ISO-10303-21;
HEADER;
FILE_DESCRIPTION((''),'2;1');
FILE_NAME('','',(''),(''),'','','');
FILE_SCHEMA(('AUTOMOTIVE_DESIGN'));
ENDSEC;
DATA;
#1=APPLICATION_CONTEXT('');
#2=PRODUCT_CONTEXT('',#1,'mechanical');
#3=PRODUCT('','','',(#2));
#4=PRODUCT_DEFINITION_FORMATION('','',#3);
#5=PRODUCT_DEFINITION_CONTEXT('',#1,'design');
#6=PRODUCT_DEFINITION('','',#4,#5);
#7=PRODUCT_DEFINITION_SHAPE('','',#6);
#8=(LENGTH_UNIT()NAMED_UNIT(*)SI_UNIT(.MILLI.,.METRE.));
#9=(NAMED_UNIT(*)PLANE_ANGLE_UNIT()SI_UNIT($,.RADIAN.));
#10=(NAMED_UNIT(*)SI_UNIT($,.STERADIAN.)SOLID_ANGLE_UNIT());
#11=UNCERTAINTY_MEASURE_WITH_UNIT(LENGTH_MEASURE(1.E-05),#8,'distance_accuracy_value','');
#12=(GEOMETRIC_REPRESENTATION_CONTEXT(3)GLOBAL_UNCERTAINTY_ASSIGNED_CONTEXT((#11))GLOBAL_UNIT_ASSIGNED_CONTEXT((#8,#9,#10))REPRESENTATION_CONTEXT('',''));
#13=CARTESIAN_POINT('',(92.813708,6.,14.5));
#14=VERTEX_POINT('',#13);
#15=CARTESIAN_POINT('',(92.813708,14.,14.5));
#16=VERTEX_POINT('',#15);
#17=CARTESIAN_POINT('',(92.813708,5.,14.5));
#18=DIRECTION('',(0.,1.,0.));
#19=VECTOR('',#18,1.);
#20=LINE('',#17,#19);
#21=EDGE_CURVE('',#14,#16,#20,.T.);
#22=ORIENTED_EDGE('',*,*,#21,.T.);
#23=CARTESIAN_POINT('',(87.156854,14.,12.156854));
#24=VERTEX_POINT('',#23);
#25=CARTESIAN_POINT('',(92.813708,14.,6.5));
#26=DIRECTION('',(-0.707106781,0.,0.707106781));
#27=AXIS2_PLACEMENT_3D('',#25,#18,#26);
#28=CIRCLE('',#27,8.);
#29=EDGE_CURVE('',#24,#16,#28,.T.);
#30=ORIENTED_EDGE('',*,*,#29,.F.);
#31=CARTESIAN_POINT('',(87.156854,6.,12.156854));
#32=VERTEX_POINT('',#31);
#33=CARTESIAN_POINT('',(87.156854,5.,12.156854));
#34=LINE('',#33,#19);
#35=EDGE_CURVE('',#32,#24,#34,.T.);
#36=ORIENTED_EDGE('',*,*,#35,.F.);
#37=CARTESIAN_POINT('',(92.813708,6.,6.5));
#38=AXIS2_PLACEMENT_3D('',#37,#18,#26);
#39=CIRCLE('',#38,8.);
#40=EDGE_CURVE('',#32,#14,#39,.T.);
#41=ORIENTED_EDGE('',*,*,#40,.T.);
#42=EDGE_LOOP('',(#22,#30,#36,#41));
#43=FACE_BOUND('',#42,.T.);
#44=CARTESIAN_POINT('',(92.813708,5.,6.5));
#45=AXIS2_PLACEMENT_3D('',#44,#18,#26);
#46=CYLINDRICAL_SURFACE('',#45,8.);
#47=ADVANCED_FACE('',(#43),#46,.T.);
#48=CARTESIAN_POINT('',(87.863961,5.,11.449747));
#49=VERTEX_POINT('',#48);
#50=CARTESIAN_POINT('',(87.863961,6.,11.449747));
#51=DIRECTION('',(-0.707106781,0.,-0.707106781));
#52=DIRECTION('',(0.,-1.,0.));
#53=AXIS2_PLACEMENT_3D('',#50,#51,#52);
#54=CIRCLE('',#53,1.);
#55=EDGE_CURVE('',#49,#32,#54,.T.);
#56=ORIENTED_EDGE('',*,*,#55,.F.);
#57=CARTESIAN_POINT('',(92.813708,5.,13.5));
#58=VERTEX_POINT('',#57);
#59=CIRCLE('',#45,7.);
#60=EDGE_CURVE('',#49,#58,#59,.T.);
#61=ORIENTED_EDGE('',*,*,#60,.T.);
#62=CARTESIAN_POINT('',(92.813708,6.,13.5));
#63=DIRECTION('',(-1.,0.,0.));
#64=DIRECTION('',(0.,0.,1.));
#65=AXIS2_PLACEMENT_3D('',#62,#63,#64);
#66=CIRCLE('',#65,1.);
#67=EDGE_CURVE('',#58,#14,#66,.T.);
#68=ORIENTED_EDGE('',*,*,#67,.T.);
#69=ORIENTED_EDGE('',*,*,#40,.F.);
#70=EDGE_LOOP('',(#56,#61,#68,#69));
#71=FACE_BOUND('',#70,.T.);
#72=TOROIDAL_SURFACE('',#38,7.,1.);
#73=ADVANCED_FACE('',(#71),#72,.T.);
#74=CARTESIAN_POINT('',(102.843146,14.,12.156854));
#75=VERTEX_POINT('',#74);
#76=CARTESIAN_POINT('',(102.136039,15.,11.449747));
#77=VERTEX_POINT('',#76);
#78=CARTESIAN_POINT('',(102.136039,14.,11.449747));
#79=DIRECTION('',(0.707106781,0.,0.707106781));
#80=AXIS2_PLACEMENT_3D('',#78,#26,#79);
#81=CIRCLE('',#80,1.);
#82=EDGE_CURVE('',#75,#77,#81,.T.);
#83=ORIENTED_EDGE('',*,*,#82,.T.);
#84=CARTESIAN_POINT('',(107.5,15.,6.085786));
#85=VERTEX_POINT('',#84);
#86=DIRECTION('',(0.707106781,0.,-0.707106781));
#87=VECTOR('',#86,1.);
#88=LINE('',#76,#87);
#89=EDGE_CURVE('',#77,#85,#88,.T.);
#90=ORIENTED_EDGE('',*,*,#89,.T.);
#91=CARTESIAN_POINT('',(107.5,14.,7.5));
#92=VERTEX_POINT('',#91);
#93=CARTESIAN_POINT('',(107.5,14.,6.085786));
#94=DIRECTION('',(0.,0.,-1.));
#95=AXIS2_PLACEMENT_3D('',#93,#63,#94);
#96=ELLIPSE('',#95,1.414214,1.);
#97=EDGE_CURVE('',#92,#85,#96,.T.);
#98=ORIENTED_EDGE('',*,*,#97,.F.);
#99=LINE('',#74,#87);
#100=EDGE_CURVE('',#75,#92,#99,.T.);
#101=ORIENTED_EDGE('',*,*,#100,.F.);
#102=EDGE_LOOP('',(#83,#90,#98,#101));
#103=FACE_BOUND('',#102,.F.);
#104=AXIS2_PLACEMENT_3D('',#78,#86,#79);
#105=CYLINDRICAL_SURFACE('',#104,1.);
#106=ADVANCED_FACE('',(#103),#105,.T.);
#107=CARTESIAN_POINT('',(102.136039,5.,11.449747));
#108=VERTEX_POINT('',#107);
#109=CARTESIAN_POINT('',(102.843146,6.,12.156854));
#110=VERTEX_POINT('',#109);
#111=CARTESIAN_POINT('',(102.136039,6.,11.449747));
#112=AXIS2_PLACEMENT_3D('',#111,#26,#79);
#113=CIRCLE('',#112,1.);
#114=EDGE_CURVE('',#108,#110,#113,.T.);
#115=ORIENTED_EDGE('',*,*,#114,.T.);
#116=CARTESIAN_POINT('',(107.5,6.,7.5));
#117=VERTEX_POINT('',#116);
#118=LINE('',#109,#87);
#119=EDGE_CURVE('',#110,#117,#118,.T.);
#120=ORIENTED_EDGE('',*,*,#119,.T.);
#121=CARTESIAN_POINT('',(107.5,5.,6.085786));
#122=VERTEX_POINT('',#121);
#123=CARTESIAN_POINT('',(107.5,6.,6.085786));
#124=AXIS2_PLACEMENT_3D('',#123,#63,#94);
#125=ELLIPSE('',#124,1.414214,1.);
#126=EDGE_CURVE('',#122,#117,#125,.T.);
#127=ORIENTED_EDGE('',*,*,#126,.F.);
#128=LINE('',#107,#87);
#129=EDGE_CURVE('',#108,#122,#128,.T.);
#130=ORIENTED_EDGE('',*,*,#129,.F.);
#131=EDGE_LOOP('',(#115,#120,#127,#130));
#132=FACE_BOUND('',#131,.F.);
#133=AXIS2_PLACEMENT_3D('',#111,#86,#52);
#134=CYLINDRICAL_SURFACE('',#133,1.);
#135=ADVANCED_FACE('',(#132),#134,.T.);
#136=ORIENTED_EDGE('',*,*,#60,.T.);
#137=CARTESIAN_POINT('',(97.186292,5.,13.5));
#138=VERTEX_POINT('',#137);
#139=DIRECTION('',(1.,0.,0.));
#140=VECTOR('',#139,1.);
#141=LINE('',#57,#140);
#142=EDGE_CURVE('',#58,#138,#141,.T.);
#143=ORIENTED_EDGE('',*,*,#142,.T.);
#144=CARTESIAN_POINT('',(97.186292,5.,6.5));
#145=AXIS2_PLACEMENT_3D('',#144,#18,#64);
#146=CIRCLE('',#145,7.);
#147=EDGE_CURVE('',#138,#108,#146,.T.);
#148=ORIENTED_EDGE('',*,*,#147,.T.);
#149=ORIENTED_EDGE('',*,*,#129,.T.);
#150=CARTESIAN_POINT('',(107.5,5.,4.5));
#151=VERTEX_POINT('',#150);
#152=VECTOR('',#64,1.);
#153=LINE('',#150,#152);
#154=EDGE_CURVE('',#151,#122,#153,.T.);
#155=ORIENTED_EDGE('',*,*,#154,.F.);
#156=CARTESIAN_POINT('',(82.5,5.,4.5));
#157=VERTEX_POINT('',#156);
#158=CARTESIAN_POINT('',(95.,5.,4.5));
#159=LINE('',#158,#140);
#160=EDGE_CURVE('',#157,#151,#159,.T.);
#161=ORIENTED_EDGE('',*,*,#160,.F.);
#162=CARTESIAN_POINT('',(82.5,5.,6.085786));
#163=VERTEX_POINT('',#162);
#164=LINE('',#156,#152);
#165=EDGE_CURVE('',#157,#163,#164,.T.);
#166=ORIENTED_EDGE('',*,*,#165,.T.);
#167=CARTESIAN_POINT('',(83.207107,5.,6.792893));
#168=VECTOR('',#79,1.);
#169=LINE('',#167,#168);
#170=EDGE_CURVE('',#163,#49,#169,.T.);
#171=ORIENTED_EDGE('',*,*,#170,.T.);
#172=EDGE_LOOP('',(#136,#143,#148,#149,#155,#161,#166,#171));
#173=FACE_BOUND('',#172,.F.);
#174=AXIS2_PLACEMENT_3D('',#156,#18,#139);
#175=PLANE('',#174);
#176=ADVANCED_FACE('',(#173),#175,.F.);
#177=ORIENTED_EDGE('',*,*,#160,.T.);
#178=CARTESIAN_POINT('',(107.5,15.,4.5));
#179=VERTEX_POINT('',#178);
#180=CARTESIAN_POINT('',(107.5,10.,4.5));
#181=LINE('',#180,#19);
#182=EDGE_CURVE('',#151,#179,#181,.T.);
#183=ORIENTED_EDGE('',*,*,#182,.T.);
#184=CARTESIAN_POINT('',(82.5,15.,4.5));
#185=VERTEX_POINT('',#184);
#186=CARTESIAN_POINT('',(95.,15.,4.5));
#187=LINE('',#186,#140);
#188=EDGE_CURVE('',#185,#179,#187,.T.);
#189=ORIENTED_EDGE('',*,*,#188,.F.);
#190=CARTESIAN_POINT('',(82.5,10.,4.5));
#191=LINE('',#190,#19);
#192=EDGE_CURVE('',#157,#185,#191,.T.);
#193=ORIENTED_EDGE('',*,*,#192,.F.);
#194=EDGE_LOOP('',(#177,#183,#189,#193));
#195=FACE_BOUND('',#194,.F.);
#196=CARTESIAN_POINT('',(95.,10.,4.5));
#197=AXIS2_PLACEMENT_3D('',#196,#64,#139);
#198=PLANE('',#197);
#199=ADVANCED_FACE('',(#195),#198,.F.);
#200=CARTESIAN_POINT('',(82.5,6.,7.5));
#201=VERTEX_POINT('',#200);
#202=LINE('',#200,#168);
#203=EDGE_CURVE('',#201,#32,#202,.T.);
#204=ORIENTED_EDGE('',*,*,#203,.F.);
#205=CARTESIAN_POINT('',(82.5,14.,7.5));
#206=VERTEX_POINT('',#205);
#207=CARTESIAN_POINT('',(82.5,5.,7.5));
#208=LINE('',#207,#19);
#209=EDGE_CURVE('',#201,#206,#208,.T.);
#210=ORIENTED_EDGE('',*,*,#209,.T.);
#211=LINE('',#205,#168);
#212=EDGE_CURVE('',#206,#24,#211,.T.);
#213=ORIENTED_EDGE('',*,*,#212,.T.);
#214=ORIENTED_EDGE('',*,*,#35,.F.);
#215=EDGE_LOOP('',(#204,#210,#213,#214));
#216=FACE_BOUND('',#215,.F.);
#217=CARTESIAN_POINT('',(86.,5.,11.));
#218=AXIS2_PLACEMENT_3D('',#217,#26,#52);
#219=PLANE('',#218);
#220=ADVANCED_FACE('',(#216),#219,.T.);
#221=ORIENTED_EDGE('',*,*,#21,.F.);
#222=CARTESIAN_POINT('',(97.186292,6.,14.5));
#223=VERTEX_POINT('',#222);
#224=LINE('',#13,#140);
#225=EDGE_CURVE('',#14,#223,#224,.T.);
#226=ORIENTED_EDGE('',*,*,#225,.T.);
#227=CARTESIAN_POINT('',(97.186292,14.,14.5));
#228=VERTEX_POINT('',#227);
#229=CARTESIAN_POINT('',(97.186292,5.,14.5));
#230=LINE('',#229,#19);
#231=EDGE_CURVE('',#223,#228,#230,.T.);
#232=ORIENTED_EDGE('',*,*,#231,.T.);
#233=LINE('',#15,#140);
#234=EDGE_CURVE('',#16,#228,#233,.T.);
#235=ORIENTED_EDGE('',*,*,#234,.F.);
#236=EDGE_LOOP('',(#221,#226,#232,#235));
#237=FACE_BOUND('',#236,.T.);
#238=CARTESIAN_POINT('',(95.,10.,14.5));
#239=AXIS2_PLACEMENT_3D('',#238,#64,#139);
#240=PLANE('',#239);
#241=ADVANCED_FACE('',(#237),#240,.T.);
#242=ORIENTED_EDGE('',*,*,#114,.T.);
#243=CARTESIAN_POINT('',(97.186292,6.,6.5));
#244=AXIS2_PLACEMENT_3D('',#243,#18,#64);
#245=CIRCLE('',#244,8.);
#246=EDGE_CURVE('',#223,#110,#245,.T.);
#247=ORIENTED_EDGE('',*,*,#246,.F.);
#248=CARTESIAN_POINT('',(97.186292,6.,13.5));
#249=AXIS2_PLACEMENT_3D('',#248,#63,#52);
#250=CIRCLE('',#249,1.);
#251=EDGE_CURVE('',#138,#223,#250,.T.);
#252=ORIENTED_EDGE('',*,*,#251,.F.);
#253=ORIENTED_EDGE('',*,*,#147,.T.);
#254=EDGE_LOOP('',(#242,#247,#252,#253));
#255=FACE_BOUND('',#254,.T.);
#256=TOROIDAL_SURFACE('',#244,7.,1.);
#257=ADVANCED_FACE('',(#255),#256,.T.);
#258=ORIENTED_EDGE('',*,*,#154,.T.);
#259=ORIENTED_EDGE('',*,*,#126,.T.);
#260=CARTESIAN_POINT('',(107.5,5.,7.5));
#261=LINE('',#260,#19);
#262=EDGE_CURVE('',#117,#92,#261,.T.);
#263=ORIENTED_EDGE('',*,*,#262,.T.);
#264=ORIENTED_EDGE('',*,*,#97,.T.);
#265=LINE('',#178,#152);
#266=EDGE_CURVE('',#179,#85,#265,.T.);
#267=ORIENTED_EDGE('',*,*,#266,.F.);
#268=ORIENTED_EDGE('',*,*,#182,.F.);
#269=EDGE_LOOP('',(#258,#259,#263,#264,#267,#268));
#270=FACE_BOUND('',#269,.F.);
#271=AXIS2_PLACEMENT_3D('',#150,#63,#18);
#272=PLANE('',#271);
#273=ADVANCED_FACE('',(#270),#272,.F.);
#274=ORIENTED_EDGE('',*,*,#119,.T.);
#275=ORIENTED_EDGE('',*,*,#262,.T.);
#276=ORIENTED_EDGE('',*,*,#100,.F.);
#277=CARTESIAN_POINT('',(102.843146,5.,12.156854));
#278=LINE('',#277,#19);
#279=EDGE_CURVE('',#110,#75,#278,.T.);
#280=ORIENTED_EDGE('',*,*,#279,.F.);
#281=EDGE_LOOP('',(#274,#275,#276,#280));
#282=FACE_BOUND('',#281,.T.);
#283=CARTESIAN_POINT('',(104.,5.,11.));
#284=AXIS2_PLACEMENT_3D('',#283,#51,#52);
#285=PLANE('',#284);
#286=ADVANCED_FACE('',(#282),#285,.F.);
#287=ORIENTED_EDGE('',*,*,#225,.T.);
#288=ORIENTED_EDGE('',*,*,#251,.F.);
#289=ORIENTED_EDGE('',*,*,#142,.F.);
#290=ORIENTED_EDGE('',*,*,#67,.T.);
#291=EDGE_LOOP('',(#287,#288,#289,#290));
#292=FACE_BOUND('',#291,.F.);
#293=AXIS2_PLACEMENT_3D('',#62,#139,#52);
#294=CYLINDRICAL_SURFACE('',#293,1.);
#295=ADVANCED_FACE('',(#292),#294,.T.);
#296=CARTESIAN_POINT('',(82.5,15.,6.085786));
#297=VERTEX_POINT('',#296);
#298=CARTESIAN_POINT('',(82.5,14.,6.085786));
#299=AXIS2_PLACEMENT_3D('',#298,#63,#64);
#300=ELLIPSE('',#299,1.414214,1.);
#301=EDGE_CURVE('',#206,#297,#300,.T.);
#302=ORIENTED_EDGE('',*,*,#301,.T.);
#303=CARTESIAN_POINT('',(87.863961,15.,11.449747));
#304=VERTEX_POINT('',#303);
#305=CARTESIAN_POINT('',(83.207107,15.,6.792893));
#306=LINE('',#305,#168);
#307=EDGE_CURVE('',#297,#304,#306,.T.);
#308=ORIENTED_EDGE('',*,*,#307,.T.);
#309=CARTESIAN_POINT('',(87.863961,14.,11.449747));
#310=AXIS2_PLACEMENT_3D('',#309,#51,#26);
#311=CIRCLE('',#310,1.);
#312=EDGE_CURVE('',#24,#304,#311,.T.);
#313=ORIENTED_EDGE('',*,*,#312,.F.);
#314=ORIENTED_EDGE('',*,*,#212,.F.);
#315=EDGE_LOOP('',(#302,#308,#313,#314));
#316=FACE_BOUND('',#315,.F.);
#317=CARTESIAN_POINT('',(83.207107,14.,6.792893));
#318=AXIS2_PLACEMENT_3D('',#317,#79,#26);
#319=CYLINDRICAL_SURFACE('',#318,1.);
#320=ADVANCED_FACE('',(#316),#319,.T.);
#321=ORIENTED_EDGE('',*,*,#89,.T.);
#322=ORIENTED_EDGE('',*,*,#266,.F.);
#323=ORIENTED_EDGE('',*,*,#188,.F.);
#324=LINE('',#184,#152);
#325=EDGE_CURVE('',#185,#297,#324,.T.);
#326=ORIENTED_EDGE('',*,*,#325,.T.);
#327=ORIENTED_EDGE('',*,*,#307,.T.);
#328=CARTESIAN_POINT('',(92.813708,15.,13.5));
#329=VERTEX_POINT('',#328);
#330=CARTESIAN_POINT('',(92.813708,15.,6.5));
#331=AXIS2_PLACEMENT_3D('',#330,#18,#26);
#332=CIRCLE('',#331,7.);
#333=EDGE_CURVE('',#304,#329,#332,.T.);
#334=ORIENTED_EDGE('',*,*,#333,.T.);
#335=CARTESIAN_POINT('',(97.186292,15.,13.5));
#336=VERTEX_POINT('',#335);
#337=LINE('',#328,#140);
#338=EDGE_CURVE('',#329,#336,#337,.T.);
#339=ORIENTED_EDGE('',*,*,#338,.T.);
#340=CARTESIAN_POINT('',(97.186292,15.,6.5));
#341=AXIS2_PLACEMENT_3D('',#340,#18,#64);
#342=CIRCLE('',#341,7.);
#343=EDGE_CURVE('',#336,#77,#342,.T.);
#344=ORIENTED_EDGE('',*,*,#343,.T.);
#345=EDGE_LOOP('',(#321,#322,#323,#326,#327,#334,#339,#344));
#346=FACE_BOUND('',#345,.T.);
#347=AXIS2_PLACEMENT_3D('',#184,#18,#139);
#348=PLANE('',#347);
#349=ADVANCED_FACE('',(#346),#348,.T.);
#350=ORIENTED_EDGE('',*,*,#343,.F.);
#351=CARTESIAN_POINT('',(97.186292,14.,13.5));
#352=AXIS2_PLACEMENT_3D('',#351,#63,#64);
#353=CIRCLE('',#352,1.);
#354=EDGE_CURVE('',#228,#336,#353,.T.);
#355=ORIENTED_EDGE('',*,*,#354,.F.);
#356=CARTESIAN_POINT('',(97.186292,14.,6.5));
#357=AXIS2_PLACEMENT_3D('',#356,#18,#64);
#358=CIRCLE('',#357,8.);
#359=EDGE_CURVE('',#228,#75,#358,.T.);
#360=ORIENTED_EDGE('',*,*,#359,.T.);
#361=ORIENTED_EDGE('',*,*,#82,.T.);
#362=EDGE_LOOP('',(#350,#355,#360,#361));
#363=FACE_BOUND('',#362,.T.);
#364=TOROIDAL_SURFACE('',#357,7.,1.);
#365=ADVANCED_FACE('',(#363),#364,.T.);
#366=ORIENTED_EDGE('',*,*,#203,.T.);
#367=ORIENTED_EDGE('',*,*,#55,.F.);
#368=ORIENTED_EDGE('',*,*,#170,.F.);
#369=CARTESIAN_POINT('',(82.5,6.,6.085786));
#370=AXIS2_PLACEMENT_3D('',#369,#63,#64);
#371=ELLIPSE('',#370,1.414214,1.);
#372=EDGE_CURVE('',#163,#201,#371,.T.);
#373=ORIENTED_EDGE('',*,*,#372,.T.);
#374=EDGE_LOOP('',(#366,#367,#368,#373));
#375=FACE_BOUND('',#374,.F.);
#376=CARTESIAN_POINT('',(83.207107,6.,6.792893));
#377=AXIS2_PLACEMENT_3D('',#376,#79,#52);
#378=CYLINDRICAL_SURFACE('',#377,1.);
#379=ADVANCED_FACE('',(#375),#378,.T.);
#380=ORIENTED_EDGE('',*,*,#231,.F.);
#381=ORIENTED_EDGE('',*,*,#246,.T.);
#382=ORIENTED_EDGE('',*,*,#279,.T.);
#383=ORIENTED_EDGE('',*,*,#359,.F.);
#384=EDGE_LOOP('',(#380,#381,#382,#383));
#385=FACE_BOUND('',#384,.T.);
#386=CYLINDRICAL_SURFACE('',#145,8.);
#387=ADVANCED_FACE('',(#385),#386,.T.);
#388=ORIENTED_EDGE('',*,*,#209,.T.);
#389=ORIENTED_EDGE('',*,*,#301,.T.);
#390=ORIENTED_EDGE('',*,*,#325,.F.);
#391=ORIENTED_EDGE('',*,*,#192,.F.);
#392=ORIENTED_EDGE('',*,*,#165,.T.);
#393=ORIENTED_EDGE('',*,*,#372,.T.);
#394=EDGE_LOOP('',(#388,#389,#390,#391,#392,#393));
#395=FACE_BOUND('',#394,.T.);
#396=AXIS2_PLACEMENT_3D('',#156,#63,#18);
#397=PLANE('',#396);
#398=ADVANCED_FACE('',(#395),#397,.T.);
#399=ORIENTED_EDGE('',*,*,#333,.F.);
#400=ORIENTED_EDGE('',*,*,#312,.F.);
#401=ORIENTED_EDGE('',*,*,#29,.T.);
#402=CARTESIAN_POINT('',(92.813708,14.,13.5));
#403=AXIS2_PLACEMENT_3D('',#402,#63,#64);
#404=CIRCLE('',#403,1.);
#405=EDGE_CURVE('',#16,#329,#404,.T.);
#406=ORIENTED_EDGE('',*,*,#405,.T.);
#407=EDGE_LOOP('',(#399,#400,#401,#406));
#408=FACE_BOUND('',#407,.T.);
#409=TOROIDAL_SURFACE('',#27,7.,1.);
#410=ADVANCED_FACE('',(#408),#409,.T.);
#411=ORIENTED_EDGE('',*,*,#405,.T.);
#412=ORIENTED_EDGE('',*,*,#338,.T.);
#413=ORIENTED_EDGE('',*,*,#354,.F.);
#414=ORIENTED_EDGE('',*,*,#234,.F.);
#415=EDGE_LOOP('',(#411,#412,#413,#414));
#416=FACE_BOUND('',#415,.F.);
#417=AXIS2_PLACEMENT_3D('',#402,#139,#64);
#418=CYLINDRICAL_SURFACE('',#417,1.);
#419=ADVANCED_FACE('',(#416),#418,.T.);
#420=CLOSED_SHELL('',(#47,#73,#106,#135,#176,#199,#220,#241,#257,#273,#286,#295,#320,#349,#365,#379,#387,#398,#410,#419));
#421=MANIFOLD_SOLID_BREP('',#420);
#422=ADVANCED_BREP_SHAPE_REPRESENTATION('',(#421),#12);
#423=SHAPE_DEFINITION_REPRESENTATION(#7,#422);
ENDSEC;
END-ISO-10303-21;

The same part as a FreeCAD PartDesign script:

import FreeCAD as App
import Part
import Sketcher
from FreeCAD import Vector


def edges_at(feature, points):
    """Names of the edges that pass closest to the given points."""
    edges = feature.Shape.Edges
    near = lambda p: min(range(len(edges)), key=lambda i: edges[i].distToShape(Part.Vertex(*p))[0])
    return sorted({f"Edge{near(p) + 1}" for p in points})

doc = App.newDocument("Part")
body = doc.addObject("PartDesign::Body", "Body")

sketch1 = body.newObject("Sketcher::SketchObject", "Sketch")
sketch1.AttachmentSupport = (doc.getObject("XY_Plane"), [""])
sketch1.MapMode = "FlatFace"
sketch1.AttachmentOffset = App.Placement(Vector(0, 0, 30), App.Rotation())
sketch1.addGeometry([
    Part.LineSegment(Vector(85, 15, 0), Vector(85, 5, 0)),
    Part.LineSegment(Vector(85, 5, 0), Vector(110, 5, 0)),
    Part.LineSegment(Vector(110, 5, 0), Vector(110, 15, 0)),
    Part.LineSegment(Vector(110, 15, 0), Vector(85, 15, 0)),
], False)
sketch1.addConstraint([
    Sketcher.Constraint("Coincident", 0, 2, 1, 1),
    Sketcher.Constraint("Coincident", 1, 2, 2, 1),
    Sketcher.Constraint("Coincident", 2, 2, 3, 1),
    Sketcher.Constraint("Coincident", 3, 2, 0, 1),
    Sketcher.Constraint("Vertical", 0),
    Sketcher.Constraint("Horizontal", 1),
    Sketcher.Constraint("Vertical", 2),
    Sketcher.Constraint("Horizontal", 3),
    Sketcher.Constraint("DistanceX", 1, 1, 1, 2, 25.0),
    Sketcher.Constraint("DistanceY", 0, 2, 0, 1, 10.0),
    Sketcher.Constraint("DistanceX", -1, 1, 0, 2, 85.0),
    Sketcher.Constraint("DistanceY", -1, 1, 0, 2, 5.0),
])
pad1 = body.newObject("PartDesign::Pad", "Pad")
pad1.Profile = sketch1
pad1.Length = 10
doc.recompute()

chamfer = body.newObject("PartDesign::Chamfer", "Chamfer")
chamfer.Base = (pad1, edges_at(pad1, [(85, 10, 40), (110, 10, 40)]))
chamfer.Size = 7
doc.recompute()

fillet = body.newObject("PartDesign::Fillet", "Fillet")
fillet.Base = (chamfer, edges_at(chamfer, [(92, 10, 40), (103, 10, 40)]))
fillet.Radius = 8
body2 = doc.addObject("PartDesign::Body", "Body001")
doc.recompute()

body.Placement = App.Placement(Vector(-7.5, 0, -3), App.Rotation(Vector(0, 0, 1), 0))
boolean = body2.newObject("PartDesign::Boolean", "Boolean")
boolean.Type = "Fuse"
boolean.addObjects([body])
doc.recompute()

fillet2 = body2.newObject("PartDesign::Fillet", "Fillet001")
fillet2.Base = (boolean, edges_at(boolean, [(95.248, 5, 36.391), (95.248, 15, 36.391)]))
fillet2.Radius = 1
body3 = doc.addObject("PartDesign::Body", "Body002")
doc.recompute()

body2.Placement = App.Placement(Vector(5, 0, -22.5), App.Rotation(Vector(0, 0, 1), 0))
boolean2 = body3.newObject("PartDesign::Boolean", "Boolean001")
boolean2.Type = "Fuse"
boolean2.addObjects([body2])

doc.recompute()
